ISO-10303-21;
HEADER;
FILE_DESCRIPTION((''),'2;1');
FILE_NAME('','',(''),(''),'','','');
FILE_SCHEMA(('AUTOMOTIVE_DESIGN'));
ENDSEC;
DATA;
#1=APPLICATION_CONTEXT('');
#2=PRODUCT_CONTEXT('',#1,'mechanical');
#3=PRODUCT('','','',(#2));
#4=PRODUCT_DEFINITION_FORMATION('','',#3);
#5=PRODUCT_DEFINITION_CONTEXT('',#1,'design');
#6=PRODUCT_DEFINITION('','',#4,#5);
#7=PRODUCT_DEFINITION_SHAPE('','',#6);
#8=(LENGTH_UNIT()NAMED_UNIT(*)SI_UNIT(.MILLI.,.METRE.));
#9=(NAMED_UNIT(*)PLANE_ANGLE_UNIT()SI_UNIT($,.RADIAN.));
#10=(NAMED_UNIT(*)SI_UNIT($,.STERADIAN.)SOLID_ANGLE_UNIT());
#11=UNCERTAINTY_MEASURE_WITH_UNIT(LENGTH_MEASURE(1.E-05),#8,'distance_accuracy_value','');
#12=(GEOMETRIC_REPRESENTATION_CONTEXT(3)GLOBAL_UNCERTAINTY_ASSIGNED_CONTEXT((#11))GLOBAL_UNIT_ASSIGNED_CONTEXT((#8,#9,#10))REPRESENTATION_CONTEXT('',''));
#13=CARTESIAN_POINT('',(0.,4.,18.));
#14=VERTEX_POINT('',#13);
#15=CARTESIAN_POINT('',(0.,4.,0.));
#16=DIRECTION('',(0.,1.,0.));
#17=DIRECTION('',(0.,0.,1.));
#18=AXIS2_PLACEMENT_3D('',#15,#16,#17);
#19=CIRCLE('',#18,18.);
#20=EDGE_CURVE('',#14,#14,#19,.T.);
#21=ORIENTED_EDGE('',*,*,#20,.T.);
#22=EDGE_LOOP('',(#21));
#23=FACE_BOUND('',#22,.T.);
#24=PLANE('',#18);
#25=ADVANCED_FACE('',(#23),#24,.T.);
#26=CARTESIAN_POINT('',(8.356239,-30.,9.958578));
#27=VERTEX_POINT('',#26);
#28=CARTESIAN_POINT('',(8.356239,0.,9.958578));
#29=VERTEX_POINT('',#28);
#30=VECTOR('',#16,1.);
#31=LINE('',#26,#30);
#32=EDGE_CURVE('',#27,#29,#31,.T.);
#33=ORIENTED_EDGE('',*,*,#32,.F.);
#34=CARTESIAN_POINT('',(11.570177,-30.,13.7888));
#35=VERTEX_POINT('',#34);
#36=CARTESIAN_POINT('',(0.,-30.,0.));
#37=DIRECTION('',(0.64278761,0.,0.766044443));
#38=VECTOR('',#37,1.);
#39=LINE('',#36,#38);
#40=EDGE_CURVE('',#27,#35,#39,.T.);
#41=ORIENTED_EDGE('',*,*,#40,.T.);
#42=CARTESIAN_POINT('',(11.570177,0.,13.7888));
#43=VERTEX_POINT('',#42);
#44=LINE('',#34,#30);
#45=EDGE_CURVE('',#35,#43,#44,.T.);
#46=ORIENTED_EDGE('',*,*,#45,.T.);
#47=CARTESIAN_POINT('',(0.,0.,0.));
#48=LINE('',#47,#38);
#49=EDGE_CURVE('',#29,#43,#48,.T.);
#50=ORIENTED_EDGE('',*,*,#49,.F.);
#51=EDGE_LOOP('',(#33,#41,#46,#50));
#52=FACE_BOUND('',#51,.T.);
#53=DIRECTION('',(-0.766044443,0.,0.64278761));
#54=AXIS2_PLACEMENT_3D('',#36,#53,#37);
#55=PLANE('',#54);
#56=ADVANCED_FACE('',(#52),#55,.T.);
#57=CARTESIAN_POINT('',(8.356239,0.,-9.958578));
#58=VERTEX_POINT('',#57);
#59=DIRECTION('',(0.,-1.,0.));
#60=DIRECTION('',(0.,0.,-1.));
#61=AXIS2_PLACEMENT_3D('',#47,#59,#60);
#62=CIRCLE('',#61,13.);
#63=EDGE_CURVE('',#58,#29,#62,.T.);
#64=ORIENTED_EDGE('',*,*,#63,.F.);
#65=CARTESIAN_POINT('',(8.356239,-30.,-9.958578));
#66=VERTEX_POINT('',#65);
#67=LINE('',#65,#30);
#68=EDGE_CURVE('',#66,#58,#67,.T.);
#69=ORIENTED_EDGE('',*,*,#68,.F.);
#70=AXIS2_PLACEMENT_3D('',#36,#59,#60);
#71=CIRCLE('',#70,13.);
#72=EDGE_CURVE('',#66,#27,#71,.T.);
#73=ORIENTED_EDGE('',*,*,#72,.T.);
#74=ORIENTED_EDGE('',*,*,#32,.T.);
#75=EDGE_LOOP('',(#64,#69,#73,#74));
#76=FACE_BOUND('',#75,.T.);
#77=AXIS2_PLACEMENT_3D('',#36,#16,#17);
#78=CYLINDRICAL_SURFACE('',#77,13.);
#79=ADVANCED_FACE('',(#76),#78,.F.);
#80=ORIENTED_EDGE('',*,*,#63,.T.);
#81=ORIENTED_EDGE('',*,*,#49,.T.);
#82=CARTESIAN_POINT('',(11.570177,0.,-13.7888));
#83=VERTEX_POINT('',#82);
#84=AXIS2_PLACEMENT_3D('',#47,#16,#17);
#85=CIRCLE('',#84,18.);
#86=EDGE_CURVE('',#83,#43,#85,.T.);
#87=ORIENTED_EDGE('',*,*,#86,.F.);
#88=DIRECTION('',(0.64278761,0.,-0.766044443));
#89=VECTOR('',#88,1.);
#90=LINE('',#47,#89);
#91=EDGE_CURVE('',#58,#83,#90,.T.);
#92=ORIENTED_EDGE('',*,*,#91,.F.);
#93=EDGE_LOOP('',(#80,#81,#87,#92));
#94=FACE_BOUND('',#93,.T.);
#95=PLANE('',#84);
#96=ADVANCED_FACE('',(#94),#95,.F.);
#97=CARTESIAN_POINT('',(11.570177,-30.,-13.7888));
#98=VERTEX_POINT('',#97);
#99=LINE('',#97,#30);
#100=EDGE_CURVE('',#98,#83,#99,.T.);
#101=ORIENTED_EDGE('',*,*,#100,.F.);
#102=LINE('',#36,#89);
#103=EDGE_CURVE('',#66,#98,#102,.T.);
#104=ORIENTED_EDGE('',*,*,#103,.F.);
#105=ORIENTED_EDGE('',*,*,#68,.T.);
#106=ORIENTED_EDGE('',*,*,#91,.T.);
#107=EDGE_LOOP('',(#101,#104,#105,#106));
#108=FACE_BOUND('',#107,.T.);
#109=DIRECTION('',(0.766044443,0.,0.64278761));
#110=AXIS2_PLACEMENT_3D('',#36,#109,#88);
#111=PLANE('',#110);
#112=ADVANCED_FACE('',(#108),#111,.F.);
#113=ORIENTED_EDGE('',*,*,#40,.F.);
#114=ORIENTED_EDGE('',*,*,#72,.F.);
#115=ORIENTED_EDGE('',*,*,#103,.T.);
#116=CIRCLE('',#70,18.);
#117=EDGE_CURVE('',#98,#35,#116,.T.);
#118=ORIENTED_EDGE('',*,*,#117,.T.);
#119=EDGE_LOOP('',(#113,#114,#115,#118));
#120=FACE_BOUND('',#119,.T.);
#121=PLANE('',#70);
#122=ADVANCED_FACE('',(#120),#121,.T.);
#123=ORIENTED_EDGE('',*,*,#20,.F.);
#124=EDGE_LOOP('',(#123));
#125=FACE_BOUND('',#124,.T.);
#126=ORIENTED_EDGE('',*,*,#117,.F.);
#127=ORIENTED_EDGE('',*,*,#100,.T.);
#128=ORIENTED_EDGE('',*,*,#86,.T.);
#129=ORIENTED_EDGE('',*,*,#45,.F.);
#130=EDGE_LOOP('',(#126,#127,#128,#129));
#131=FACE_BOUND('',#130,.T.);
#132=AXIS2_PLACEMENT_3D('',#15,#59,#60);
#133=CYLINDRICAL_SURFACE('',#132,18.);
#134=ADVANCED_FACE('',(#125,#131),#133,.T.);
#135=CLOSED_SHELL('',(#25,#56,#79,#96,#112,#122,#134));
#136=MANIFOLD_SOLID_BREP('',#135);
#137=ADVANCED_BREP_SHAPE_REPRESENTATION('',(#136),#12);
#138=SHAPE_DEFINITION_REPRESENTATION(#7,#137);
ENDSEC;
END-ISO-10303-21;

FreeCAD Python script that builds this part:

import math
import FreeCAD as App
import Part
import Sketcher
Q = App.Units.Quantity

doc = App.newDocument("Part")
params = doc.addObject("Spreadsheet::Sheet", "Params")
for row, (alias, value) in enumerate([
    ("sketch1_diameter", "36 mm"),
    ("pad1_length", "4 mm"),
    ("sketch2_radius", "13 mm"),
    ("sketch2_radius2", "18 mm"),
    ("pad2_length", "30 mm"),
], start=1):
    params.set(f"A{row}", alias)
    params.set(f"B{row}", "=" + value)
    params.setAlias(f"B{row}", alias)

body = doc.addObject("PartDesign::Body", "Body")

sketch1 = body.newObject("Sketcher::SketchObject", "Sketch")
sketch1.AttachmentSupport = (doc.getObject("XZ_Plane"), [""])
sketch1.MapMode = "FlatFace"
sketch1.addGeometry(Part.Circle(App.Vector(0, 0, 0), App.Vector(0, 0, 1), 18), False)
sketch1.addConstraint([
    Sketcher.Constraint("Coincident", 0, 3, -1, 1),
    Sketcher.Constraint("Diameter", 0, 36.0),
])
sketch1.setExpression("Constraints[1]", "Params.sketch1_diameter")
pad1 = body.newObject("PartDesign::Pad", "Pad")
pad1.Profile = sketch1
pad1.setExpression("Length", "Params.pad1_length")
pad1.Reversed = True

sketch2 = body.newObject("Sketcher::SketchObject", "Sketch001")
sketch2.AttachmentSupport = (doc.getObject("XZ_Plane"), [""])
sketch2.MapMode = "FlatFace"
sketch2.addGeometry([
    Part.LineSegment(App.Vector(11.6, 13.8, 0), App.Vector(8.4, 10, 0)),
    Part.ArcOfCircle(Part.Circle(App.Vector(0, 0, 0), App.Vector(0, 0, 1), 13), math.radians(0), math.radians(50)),
    Part.ArcOfCircle(Part.Circle(App.Vector(0, 0, 0), App.Vector(0, 0, 1), 13), math.radians(-50), math.radians(0)),
    Part.LineSegment(App.Vector(8.4, -10, 0), App.Vector(11.6, -13.8, 0)),
    Part.ArcOfCircle(Part.Circle(App.Vector(0, 0, 0), App.Vector(0, 0, 1), 18), math.radians(-50), math.radians(0)),
    Part.ArcOfCircle(Part.Circle(App.Vector(0, 0, 0), App.Vector(0, 0, 1), 18), math.radians(0), math.radians(50)),
], False)
sketch2.addConstraint([
    Sketcher.Constraint("Coincident", 0, 2, 1, 2),
    Sketcher.Constraint("Tangent", 1, 1, 2, 2),
    Sketcher.Constraint("Coincident", 2, 1, 3, 1),
    Sketcher.Constraint("Coincident", 3, 2, 4, 1),
    Sketcher.Constraint("Tangent", 4, 2, 5, 1),
    Sketcher.Constraint("Coincident", 5, 2, 0, 1),
    Sketcher.Constraint("Coincident", 1, 3, -1, 1),
    Sketcher.Constraint("Coincident", 4, 3, -1, 1),
    Sketcher.Constraint("Equal", 1, 2),
    Sketcher.Constraint("Equal", 4, 5),
    Sketcher.Constraint("PointOnObject", 1, 1, -1),
    Sketcher.Constraint("PointOnObject", 4, 2, -1),
    Sketcher.Constraint("Vertical", 0, 2, 2, 1),
    Sketcher.Constraint("Vertical", 3, 2, 5, 2),
    Sketcher.Constraint("Radius", 1, 13.0),
    Sketcher.Constraint("Radius", 4, 18.0),
    Sketcher.Constraint("Angle", 0, Q("-130 deg")),
    Sketcher.Constraint("DistanceY", 3, 2, -1, 1, 13.7888),
])
sketch2.setExpression("Constraints[14]", "Params.sketch2_radius")
sketch2.setExpression("Constraints[15]", "Params.sketch2_radius2")
pad2 = body.newObject("PartDesign::Pad", "Pad001")
pad2.Profile = sketch2
pad2.setExpression("Length", "Params.pad2_length")

doc.recompute()
